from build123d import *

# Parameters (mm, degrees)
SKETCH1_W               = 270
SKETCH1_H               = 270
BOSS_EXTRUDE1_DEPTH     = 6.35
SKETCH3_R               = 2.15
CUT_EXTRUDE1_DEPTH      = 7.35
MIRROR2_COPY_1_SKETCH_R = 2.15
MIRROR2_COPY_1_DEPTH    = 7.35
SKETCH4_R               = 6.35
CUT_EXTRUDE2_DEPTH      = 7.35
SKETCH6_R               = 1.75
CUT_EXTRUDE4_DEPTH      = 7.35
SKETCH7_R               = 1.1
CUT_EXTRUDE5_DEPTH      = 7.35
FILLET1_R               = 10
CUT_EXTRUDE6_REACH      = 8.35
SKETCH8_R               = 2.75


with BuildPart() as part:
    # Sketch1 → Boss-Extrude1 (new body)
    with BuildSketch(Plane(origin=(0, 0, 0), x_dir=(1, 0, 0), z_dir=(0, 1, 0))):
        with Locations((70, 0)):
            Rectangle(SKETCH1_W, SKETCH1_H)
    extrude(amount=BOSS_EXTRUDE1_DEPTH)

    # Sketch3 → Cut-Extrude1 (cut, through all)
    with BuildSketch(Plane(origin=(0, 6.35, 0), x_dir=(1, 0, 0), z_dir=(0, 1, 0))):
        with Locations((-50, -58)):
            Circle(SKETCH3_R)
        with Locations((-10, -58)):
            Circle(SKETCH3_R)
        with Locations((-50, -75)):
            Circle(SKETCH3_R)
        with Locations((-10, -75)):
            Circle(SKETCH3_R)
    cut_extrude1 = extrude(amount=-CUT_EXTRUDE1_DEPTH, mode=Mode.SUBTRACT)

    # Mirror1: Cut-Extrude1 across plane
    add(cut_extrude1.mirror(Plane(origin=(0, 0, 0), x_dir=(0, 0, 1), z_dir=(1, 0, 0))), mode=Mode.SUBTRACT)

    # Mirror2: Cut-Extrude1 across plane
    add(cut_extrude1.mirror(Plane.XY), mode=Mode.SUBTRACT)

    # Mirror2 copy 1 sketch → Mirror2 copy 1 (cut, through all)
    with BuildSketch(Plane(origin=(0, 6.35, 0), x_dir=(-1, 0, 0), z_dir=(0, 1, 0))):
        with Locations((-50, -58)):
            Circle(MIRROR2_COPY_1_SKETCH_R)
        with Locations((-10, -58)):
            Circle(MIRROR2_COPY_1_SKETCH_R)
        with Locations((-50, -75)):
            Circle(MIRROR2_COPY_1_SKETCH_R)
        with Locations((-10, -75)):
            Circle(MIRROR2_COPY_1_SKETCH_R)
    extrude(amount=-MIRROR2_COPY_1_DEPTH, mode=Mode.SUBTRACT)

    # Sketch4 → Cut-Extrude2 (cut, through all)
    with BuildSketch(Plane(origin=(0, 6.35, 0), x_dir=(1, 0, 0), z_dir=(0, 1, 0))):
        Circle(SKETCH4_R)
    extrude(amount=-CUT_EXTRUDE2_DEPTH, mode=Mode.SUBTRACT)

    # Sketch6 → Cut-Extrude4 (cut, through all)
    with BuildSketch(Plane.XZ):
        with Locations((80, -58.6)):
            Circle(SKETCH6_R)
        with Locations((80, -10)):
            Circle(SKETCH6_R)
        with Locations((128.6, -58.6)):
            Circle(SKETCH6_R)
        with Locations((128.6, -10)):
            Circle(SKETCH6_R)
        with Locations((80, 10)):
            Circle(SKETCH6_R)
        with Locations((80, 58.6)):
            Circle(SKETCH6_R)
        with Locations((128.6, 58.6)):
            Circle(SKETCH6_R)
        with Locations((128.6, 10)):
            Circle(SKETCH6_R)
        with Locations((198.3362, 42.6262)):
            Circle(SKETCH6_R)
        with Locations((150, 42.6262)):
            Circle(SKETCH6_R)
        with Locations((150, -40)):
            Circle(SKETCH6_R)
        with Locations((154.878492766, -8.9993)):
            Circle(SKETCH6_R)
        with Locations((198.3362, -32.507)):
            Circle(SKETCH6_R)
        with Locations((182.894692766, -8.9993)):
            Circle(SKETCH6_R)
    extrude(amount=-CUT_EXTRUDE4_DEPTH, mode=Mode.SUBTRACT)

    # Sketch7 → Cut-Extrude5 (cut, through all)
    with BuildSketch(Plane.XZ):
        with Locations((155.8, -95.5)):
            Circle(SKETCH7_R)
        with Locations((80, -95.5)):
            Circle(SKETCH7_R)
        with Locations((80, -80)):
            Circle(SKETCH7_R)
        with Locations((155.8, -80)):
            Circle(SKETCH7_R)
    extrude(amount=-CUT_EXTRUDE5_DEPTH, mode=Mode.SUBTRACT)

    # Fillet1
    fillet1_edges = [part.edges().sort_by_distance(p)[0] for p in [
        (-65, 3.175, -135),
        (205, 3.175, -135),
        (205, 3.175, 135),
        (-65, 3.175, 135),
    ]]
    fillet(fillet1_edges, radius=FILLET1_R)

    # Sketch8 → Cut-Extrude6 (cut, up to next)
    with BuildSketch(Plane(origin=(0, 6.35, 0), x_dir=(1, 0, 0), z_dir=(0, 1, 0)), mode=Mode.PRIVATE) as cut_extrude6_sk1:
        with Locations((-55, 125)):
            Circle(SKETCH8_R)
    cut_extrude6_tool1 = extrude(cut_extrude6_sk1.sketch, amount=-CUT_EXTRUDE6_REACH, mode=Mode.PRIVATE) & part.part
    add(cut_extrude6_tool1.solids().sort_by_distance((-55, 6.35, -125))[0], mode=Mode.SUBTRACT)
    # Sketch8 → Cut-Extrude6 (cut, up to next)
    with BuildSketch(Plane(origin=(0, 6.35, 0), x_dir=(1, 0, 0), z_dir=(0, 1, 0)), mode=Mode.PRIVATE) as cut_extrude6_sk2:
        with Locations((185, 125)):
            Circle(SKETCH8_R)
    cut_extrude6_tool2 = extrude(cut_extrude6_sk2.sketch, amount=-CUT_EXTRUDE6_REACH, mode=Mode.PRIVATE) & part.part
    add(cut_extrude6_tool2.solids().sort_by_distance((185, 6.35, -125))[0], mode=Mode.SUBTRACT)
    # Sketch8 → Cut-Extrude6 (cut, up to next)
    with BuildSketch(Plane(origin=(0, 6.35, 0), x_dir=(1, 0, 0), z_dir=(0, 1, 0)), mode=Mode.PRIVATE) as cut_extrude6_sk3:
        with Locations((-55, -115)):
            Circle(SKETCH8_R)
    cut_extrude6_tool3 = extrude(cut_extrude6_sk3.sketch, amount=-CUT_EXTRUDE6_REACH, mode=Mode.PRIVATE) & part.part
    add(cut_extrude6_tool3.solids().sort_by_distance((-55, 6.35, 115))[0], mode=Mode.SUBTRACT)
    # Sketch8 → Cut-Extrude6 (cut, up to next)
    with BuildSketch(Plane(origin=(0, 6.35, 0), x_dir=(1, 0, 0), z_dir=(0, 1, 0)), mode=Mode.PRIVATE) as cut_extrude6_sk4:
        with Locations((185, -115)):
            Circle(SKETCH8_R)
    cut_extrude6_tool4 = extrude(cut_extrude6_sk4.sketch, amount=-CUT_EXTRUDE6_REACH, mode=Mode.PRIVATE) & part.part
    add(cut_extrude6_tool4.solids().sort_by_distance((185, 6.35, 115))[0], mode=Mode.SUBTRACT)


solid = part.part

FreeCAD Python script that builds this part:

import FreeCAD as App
import Part
import Sketcher

V = App.Vector
Q = App.Units.Quantity


def edges_at(feature, points):
    """Names of the edges that pass closest to the given points."""
    edges = feature.Shape.Edges
    near = lambda p: min(range(len(edges)), key=lambda i: edges[i].distToShape(Part.Vertex(*p))[0])
    return sorted({f"Edge{near(p) + 1}" for p in points})


def add_polygon(sketch, points):
    """Adds a closed chain of lines whose ends are joined by coincident constraints."""
    first, n = sketch.GeometryCount, len(points)
    for a, b in zip(points, points[1:] + points[:1]):
        sketch.addGeometry(Part.LineSegment(App.Vector(*a, 0), App.Vector(*b, 0)), False)
    for i in range(n):
        sketch.addConstraint(Sketcher.Constraint("Coincident", first + i, 2, first + (i + 1) % n, 1))

doc = App.newDocument("Part")
body = doc.addObject("PartDesign::Body", "Body")

sketch1 = body.newObject("Sketcher::SketchObject", "Sketch")
sketch1.AttachmentSupport = (doc.getObject("XZ_Plane"), [""])
sketch1.MapMode = "FlatFace"
add_polygon(sketch1, [(-65, -135), (-65, 135), (205, 135), (205, -135)])
sketch1.addConstraint([
    Sketcher.Constraint("Vertical", 0),
    Sketcher.Constraint("Horizontal", 1),
    Sketcher.Constraint("Vertical", 2),
    Sketcher.Constraint("Horizontal", 3),
    Sketcher.Constraint("Equal", 3, 0),
    Sketcher.Constraint("DistanceX", 1, 1, 1, 2, Q("270 mm")),
    Sketcher.Constraint("DistanceX", 0, 2, -1, 1, Q("65 mm")),
    Sketcher.Constraint("DistanceY", -1, 1, 0, 2, Q("135 mm")),
])
pad1 = body.newObject("PartDesign::Pad", "Pad")
pad1.Profile = sketch1
pad1.Length = 6.35
pad1.Reversed = True

sketch2 = body.newObject("Sketcher::SketchObject", "Sketch001")
sketch2.AttachmentSupport = (doc.getObject("XZ_Plane"), [""])
sketch2.MapMode = "FlatFace"
sketch2.AttachmentOffset = App.Placement(V(0, 0, -6.35), App.Rotation())
sketch2.addGeometry([
    Part.Circle(V(-50, 58, 0), V(0, 0, 1), 2.15),
    Part.Circle(V(-10, 58, 0), V(0, 0, 1), 2.15),
    Part.Circle(V(-50, 75, 0), V(0, 0, 1), 2.15),
    Part.Circle(V(-10, 75, 0), V(0, 0, 1), 2.15),
], False)
sketch2.addConstraint([
    Sketcher.Constraint("Equal", 0, 1),
    Sketcher.Constraint("Equal", 1, 2),
    Sketcher.Constraint("Equal", 2, 3),
    Sketcher.Constraint("Horizontal", 0, 3, 1, 3),
    Sketcher.Constraint("Horizontal", 2, 3, 3, 3),
    Sketcher.Constraint("Vertical", 0, 3, 2, 3),
    Sketcher.Constraint("Vertical", 1, 3, 3, 3),
    Sketcher.Constraint("Diameter", 0, Q("4.3 mm")),
    Sketcher.Constraint("DistanceX", 0, 3, -1, 1, Q("50 mm")),
    Sketcher.Constraint("DistanceY", -1, 1, 0, 3, Q("58 mm")),
    Sketcher.Constraint("DistanceX", 1, 3, -1, 1, Q("10 mm")),
    Sketcher.Constraint("DistanceY", -1, 1, 2, 3, Q("75 mm")),
])
pocket1 = body.newObject("PartDesign::Pocket", "Pocket")
pocket1.Profile = sketch2
pocket1.Type = "ThroughAll"
pocket1.Reversed = True
doc.recompute()

mirrored = body.newObject("PartDesign::Mirrored", "Mirrored")
mirrored.Originals = [pocket1]
mirrored.MirrorPlane = (doc.getObject("YZ_Plane"), [""])
body.Tip = mirrored
doc.recompute()

mirrored2 = body.newObject("PartDesign::Mirrored", "Mirrored001")
mirrored2.Originals = [pocket1]
mirrored2.MirrorPlane = (doc.getObject("XY_Plane"), [""])
body.Tip = mirrored2

sketch3 = body.newObject("Sketcher::SketchObject", "Sketch002")
sketch3.AttachmentSupport = (doc.getObject("XZ_Plane"), [""])
sketch3.MapMode = "FlatFace"
sketch3.AttachmentOffset = App.Placement(V(0, 0, -6.35), App.Rotation())
sketch3.addGeometry([
    Part.Circle(V(50, -58, 0), V(0, 0, 1), 2.15),
    Part.Circle(V(10, -58, 0), V(0, 0, 1), 2.15),
    Part.Circle(V(50, -75, 0), V(0, 0, 1), 2.15),
    Part.Circle(V(10, -75, 0), V(0, 0, 1), 2.15),
], False)
sketch3.addConstraint([
    Sketcher.Constraint("Equal", 0, 1),
    Sketcher.Constraint("Equal", 1, 2),
    Sketcher.Constraint("Equal", 2, 3),
    Sketcher.Constraint("Horizontal", 0, 3, 1, 3),
    Sketcher.Constraint("Horizontal", 2, 3, 3, 3),
    Sketcher.Constraint("Vertical", 0, 3, 2, 3),
    Sketcher.Constraint("Vertical", 1, 3, 3, 3),
    Sketcher.Constraint("Diameter", 0, Q("4.3 mm")),
    Sketcher.Constraint("DistanceX", -1, 1, 0, 3, Q("50 mm")),
    Sketcher.Constraint("DistanceY", 0, 3, -1, 1, Q("58 mm")),
    Sketcher.Constraint("DistanceX", -1, 1, 1, 3, Q("10 mm")),
    Sketcher.Constraint("DistanceY", 2, 3, -1, 1, Q("75 mm")),
])
pocket2 = body.newObject("PartDesign::Pocket", "Pocket001")
pocket2.Profile = sketch3
pocket2.Type = "ThroughAll"
pocket2.Reversed = True

sketch4 = body.newObject("Sketcher::SketchObject", "Sketch003")
sketch4.AttachmentSupport = (doc.getObject("XZ_Plane"), [""])
sketch4.MapMode = "FlatFace"
sketch4.AttachmentOffset = App.Placement(V(0, 0, -6.35), App.Rotation())
sketch4.addGeometry(Part.Circle(V(0, 0, 0), V(0, 0, 1), 6.35), False)
sketch4.addConstraint([
    Sketcher.Constraint("Coincident", 0, 3, -1, 1),
    Sketcher.Constraint("Diameter", 0, Q("12.7 mm")),
])
pocket3 = body.newObject("PartDesign::Pocket", "Pocket002")
pocket3.Profile = sketch4
pocket3.Type = "ThroughAll"
pocket3.Reversed = True

sketch5 = body.newObject("Sketcher::SketchObject", "Sketch004")
sketch5.AttachmentSupport = (doc.getObject("XZ_Plane"), [""])
sketch5.MapMode = "FlatFace"
sketch5.addGeometry([
    Part.Circle(V(80, -58.6, 0), V(0, 0, 1), 1.75),
    Part.Circle(V(80, -10, 0), V(0, 0, 1), 1.75),
    Part.Circle(V(128.6, -58.6, 0), V(0, 0, 1), 1.75),
    Part.Circle(V(128.6, -10, 0), V(0, 0, 1), 1.75),
    Part.Circle(V(80, 10, 0), V(0, 0, 1), 1.75),
    Part.Circle(V(80, 58.6, 0), V(0, 0, 1), 1.75),
    Part.Circle(V(128.6, 58.6, 0), V(0, 0, 1), 1.75),
    Part.Circle(V(128.6, 10, 0), V(0, 0, 1), 1.75),
    Part.Circle(V(198.3362, 42.6262, 0), V(0, 0, 1), 1.75),
    Part.Circle(V(150, 42.6262, 0), V(0, 0, 1), 1.75),
    Part.Circle(V(150, -40, 0), V(0, 0, 1), 1.75),
    Part.Circle(V(154.878493, -8.9993, 0), V(0, 0, 1), 1.75),
    Part.Circle(V(198.3362, -32.507, 0), V(0, 0, 1), 1.75),
    Part.Circle(V(182.894693, -8.9993, 0), V(0, 0, 1), 1.75),
], False)
sketch5.addConstraint([
    Sketcher.Constraint("Equal", 0, 1),
    Sketcher.Constraint("Equal", 1, 2),
    Sketcher.Constraint("Equal", 2, 3),
    Sketcher.Constraint("Equal", 3, 4),
    Sketcher.Constraint("Equal", 4, 5),
    Sketcher.Constraint("Equal", 5, 6),
    Sketcher.Constraint("Equal", 6, 7),
    Sketcher.Constraint("Equal", 7, 8),
    Sketcher.Constraint("Equal", 8, 9),
    Sketcher.Constraint("Equal", 9, 10),
    Sketcher.Constraint("Equal", 10, 11),
    Sketcher.Constraint("Equal", 11, 12),
    Sketcher.Constraint("Equal", 12, 13),
    Sketcher.Constraint("Symmetric", 1, 3, 4, 3, -1),
    Sketcher.Constraint("Symmetric", 0, 3, 5, 3, -1),
    Sketcher.Constraint("Symmetric", 2, 3, 6, 3, -1),
    Sketcher.Constraint("Symmetric", 3, 3, 7, 3, -1),
    Sketcher.Constraint("Horizontal", 0, 3, 2, 3),
    Sketcher.Constraint("Horizontal", 1, 3, 3, 3),
    Sketcher.Constraint("Horizontal", 8, 3, 9, 3),
    Sketcher.Constraint("Horizontal", 11, 3, 13, 3),
    Sketcher.Constraint("Vertical", 0, 3, 1, 3),
    Sketcher.Constraint("Vertical", 2, 3, 3, 3),
    Sketcher.Constraint("Vertical", 9, 3, 10, 3),
    Sketcher.Constraint("Vertical", 8, 3, 12, 3),
    Sketcher.Constraint("Diameter", 0, Q("3.5 mm")),
    Sketcher.Constraint("DistanceX", -1, 1, 0, 3, Q("80 mm")),
    Sketcher.Constraint("DistanceY", 1, 3, -1, 1, Q("10 mm")),
    Sketcher.Constraint("DistanceX", -1, 1, 9, 3, Q("150 mm")),
    Sketcher.Constraint("DistanceY", 10, 3, -1, 1, Q("40 mm")),
    Sketcher.Constraint("DistanceY", 0, 3, -1, 1, Q("58.6 mm")),
    Sketcher.Constraint("DistanceX", -1, 1, 2, 3, Q("128.6 mm")),
    Sketcher.Constraint("DistanceY", 12, 3, -1, 1, Q("32.507 mm")),
    Sketcher.Constraint("DistanceX", -1, 1, 8, 3, Q("198.3362 mm")),
    Sketcher.Constraint("DistanceY", -1, 1, 8, 3, Q("42.6262 mm")),
    Sketcher.Constraint("DistanceY", 11, 3, -1, 1, Q("8.9993 mm")),
    Sketcher.Constraint("DistanceX", 11, 3, 13, 3, Q("28.0162 mm")),
    Sketcher.Constraint("DistanceX", -1, 1, 11, 3, Q("154.878493 mm")),
])
pocket4 = body.newObject("PartDesign::Pocket", "Pocket003")
pocket4.Profile = sketch5
pocket4.Type = "ThroughAll"

sketch6 = body.newObject("Sketcher::SketchObject", "Sketch005")
sketch6.AttachmentSupport = (doc.getObject("XZ_Plane"), [""])
sketch6.MapMode = "FlatFace"
sketch6.addGeometry([
    Part.Circle(V(155.8, -95.5, 0), V(0, 0, 1), 1.1),
    Part.Circle(V(80, -95.5, 0), V(0, 0, 1), 1.1),
    Part.Circle(V(80, -80, 0), V(0, 0, 1), 1.1),
    Part.Circle(V(155.8, -80, 0), V(0, 0, 1), 1.1),
], False)
sketch6.addConstraint([
    Sketcher.Constraint("Equal", 0, 1),
    Sketcher.Constraint("Equal", 1, 2),
    Sketcher.Constraint("Equal", 2, 3),
    Sketcher.Constraint("Horizontal", 0, 3, 1, 3),
    Sketcher.Constraint("Horizontal", 2, 3, 3, 3),
    Sketcher.Constraint("Vertical", 1, 3, 2, 3),
    Sketcher.Constraint("Vertical", 0, 3, 3, 3),
    Sketcher.Constraint("Diameter", 0, Q("2.2 mm")),
    Sketcher.Constraint("DistanceX", -1, 1, 1, 3, Q("80 mm")),
    Sketcher.Constraint("DistanceY", 2, 3, -1, 1, Q("80 mm")),
    Sketcher.Constraint("DistanceX", -1, 1, 0, 3, Q("155.8 mm")),
    Sketcher.Constraint("DistanceY", 0, 3, -1, 1, Q("95.5 mm")),
])
pocket5 = body.newObject("PartDesign::Pocket", "Pocket004")
pocket5.Profile = sketch6
pocket5.Type = "ThroughAll"
doc.recompute()

fillet = body.newObject("PartDesign::Fillet", "Fillet")
fillet.Base = (pocket5, edges_at(pocket5, [
    (-65, 3.175, -135),
    (205, 3.175, -135),
    (205, 3.175, 135),
    (-65, 3.175, 135),
]))
fillet.Radius = 10

sketch7 = body.newObject("Sketcher::SketchObject", "Sketch006")
sketch7.AttachmentSupport = (doc.getObject("XZ_Plane"), [""])
sketch7.MapMode = "FlatFace"
sketch7.AttachmentOffset = App.Placement(V(0, 0, -6.35), App.Rotation())
sketch7.addGeometry(Part.Circle(V(-55, -125, 0), V(0, 0, 1), 2.75), False)
sketch7.addConstraint([
    Sketcher.Constraint("Diameter", 0, Q("5.5 mm")),
    Sketcher.Constraint("DistanceX", 0, 3, -1, 1, Q("55 mm")),
    Sketcher.Constraint("DistanceY", 0, 3, -1, 1, Q("125 mm")),
])
pocket6 = body.newObject("PartDesign::Pocket", "Pocket005")
pocket6.Profile = sketch7
pocket6.Type = "UpToFirst"
pocket6.Reversed = True

sketch8 = body.newObject("Sketcher::SketchObject", "Sketch007")
sketch8.AttachmentSupport = (doc.getObject("XZ_Plane"), [""])
sketch8.MapMode = "FlatFace"
sketch8.AttachmentOffset = App.Placement(V(0, 0, -6.35), App.Rotation())
sketch8.addGeometry(Part.Circle(V(185, -125, 0), V(0, 0, 1), 2.75), False)
sketch8.addConstraint([
    Sketcher.Constraint("Diameter", 0, Q("5.5 mm")),
    Sketcher.Constraint("DistanceX", -1, 1, 0, 3, Q("185 mm")),
    Sketcher.Constraint("DistanceY", 0, 3, -1, 1, Q("125 mm")),
])
pocket7 = body.newObject("PartDesign::Pocket", "Pocket006")
pocket7.Profile = sketch8
pocket7.Type = "UpToFirst"
pocket7.Reversed = True

sketch9 = body.newObject("Sketcher::SketchObject", "Sketch008")
sketch9.AttachmentSupport = (doc.getObject("XZ_Plane"), [""])
sketch9.MapMode = "FlatFace"
sketch9.AttachmentOffset = App.Placement(V(0, 0, -6.35), App.Rotation())
sketch9.addGeometry(Part.Circle(V(-55, 115, 0), V(0, 0, 1), 2.75), False)
sketch9.addConstraint([
    Sketcher.Constraint("Diameter", 0, Q("5.5 mm")),
    Sketcher.Constraint("DistanceX", 0, 3, -1, 1, Q("55 mm")),
    Sketcher.Constraint("DistanceY", -1, 1, 0, 3, Q("115 mm")),
])
pocket8 = body.newObject("PartDesign::Pocket", "Pocket007")
pocket8.Profile = sketch9
pocket8.Type = "UpToFirst"
pocket8.Reversed = True

sketch10 = body.newObject("Sketcher::SketchObject", "Sketch009")
sketch10.AttachmentSupport = (doc.getObject("XZ_Plane"), [""])
sketch10.MapMode = "FlatFace"
sketch10.AttachmentOffset = App.Placement(V(0, 0, -6.35), App.Rotation())
sketch10.addGeometry(Part.Circle(V(185, 115, 0), V(0, 0, 1), 2.75), False)
sketch10.addConstraint([
    Sketcher.Constraint("Diameter", 0, Q("5.5 mm")),
    Sketcher.Constraint("DistanceX", -1, 1, 0, 3, Q("185 mm")),
    Sketcher.Constraint("DistanceY", -1, 1, 0, 3, Q("115 mm")),
])
pocket9 = body.newObject("PartDesign::Pocket", "Pocket008")
pocket9.Profile = sketch10
pocket9.Type = "UpToFirst"
pocket9.Reversed = True

doc.recompute()
